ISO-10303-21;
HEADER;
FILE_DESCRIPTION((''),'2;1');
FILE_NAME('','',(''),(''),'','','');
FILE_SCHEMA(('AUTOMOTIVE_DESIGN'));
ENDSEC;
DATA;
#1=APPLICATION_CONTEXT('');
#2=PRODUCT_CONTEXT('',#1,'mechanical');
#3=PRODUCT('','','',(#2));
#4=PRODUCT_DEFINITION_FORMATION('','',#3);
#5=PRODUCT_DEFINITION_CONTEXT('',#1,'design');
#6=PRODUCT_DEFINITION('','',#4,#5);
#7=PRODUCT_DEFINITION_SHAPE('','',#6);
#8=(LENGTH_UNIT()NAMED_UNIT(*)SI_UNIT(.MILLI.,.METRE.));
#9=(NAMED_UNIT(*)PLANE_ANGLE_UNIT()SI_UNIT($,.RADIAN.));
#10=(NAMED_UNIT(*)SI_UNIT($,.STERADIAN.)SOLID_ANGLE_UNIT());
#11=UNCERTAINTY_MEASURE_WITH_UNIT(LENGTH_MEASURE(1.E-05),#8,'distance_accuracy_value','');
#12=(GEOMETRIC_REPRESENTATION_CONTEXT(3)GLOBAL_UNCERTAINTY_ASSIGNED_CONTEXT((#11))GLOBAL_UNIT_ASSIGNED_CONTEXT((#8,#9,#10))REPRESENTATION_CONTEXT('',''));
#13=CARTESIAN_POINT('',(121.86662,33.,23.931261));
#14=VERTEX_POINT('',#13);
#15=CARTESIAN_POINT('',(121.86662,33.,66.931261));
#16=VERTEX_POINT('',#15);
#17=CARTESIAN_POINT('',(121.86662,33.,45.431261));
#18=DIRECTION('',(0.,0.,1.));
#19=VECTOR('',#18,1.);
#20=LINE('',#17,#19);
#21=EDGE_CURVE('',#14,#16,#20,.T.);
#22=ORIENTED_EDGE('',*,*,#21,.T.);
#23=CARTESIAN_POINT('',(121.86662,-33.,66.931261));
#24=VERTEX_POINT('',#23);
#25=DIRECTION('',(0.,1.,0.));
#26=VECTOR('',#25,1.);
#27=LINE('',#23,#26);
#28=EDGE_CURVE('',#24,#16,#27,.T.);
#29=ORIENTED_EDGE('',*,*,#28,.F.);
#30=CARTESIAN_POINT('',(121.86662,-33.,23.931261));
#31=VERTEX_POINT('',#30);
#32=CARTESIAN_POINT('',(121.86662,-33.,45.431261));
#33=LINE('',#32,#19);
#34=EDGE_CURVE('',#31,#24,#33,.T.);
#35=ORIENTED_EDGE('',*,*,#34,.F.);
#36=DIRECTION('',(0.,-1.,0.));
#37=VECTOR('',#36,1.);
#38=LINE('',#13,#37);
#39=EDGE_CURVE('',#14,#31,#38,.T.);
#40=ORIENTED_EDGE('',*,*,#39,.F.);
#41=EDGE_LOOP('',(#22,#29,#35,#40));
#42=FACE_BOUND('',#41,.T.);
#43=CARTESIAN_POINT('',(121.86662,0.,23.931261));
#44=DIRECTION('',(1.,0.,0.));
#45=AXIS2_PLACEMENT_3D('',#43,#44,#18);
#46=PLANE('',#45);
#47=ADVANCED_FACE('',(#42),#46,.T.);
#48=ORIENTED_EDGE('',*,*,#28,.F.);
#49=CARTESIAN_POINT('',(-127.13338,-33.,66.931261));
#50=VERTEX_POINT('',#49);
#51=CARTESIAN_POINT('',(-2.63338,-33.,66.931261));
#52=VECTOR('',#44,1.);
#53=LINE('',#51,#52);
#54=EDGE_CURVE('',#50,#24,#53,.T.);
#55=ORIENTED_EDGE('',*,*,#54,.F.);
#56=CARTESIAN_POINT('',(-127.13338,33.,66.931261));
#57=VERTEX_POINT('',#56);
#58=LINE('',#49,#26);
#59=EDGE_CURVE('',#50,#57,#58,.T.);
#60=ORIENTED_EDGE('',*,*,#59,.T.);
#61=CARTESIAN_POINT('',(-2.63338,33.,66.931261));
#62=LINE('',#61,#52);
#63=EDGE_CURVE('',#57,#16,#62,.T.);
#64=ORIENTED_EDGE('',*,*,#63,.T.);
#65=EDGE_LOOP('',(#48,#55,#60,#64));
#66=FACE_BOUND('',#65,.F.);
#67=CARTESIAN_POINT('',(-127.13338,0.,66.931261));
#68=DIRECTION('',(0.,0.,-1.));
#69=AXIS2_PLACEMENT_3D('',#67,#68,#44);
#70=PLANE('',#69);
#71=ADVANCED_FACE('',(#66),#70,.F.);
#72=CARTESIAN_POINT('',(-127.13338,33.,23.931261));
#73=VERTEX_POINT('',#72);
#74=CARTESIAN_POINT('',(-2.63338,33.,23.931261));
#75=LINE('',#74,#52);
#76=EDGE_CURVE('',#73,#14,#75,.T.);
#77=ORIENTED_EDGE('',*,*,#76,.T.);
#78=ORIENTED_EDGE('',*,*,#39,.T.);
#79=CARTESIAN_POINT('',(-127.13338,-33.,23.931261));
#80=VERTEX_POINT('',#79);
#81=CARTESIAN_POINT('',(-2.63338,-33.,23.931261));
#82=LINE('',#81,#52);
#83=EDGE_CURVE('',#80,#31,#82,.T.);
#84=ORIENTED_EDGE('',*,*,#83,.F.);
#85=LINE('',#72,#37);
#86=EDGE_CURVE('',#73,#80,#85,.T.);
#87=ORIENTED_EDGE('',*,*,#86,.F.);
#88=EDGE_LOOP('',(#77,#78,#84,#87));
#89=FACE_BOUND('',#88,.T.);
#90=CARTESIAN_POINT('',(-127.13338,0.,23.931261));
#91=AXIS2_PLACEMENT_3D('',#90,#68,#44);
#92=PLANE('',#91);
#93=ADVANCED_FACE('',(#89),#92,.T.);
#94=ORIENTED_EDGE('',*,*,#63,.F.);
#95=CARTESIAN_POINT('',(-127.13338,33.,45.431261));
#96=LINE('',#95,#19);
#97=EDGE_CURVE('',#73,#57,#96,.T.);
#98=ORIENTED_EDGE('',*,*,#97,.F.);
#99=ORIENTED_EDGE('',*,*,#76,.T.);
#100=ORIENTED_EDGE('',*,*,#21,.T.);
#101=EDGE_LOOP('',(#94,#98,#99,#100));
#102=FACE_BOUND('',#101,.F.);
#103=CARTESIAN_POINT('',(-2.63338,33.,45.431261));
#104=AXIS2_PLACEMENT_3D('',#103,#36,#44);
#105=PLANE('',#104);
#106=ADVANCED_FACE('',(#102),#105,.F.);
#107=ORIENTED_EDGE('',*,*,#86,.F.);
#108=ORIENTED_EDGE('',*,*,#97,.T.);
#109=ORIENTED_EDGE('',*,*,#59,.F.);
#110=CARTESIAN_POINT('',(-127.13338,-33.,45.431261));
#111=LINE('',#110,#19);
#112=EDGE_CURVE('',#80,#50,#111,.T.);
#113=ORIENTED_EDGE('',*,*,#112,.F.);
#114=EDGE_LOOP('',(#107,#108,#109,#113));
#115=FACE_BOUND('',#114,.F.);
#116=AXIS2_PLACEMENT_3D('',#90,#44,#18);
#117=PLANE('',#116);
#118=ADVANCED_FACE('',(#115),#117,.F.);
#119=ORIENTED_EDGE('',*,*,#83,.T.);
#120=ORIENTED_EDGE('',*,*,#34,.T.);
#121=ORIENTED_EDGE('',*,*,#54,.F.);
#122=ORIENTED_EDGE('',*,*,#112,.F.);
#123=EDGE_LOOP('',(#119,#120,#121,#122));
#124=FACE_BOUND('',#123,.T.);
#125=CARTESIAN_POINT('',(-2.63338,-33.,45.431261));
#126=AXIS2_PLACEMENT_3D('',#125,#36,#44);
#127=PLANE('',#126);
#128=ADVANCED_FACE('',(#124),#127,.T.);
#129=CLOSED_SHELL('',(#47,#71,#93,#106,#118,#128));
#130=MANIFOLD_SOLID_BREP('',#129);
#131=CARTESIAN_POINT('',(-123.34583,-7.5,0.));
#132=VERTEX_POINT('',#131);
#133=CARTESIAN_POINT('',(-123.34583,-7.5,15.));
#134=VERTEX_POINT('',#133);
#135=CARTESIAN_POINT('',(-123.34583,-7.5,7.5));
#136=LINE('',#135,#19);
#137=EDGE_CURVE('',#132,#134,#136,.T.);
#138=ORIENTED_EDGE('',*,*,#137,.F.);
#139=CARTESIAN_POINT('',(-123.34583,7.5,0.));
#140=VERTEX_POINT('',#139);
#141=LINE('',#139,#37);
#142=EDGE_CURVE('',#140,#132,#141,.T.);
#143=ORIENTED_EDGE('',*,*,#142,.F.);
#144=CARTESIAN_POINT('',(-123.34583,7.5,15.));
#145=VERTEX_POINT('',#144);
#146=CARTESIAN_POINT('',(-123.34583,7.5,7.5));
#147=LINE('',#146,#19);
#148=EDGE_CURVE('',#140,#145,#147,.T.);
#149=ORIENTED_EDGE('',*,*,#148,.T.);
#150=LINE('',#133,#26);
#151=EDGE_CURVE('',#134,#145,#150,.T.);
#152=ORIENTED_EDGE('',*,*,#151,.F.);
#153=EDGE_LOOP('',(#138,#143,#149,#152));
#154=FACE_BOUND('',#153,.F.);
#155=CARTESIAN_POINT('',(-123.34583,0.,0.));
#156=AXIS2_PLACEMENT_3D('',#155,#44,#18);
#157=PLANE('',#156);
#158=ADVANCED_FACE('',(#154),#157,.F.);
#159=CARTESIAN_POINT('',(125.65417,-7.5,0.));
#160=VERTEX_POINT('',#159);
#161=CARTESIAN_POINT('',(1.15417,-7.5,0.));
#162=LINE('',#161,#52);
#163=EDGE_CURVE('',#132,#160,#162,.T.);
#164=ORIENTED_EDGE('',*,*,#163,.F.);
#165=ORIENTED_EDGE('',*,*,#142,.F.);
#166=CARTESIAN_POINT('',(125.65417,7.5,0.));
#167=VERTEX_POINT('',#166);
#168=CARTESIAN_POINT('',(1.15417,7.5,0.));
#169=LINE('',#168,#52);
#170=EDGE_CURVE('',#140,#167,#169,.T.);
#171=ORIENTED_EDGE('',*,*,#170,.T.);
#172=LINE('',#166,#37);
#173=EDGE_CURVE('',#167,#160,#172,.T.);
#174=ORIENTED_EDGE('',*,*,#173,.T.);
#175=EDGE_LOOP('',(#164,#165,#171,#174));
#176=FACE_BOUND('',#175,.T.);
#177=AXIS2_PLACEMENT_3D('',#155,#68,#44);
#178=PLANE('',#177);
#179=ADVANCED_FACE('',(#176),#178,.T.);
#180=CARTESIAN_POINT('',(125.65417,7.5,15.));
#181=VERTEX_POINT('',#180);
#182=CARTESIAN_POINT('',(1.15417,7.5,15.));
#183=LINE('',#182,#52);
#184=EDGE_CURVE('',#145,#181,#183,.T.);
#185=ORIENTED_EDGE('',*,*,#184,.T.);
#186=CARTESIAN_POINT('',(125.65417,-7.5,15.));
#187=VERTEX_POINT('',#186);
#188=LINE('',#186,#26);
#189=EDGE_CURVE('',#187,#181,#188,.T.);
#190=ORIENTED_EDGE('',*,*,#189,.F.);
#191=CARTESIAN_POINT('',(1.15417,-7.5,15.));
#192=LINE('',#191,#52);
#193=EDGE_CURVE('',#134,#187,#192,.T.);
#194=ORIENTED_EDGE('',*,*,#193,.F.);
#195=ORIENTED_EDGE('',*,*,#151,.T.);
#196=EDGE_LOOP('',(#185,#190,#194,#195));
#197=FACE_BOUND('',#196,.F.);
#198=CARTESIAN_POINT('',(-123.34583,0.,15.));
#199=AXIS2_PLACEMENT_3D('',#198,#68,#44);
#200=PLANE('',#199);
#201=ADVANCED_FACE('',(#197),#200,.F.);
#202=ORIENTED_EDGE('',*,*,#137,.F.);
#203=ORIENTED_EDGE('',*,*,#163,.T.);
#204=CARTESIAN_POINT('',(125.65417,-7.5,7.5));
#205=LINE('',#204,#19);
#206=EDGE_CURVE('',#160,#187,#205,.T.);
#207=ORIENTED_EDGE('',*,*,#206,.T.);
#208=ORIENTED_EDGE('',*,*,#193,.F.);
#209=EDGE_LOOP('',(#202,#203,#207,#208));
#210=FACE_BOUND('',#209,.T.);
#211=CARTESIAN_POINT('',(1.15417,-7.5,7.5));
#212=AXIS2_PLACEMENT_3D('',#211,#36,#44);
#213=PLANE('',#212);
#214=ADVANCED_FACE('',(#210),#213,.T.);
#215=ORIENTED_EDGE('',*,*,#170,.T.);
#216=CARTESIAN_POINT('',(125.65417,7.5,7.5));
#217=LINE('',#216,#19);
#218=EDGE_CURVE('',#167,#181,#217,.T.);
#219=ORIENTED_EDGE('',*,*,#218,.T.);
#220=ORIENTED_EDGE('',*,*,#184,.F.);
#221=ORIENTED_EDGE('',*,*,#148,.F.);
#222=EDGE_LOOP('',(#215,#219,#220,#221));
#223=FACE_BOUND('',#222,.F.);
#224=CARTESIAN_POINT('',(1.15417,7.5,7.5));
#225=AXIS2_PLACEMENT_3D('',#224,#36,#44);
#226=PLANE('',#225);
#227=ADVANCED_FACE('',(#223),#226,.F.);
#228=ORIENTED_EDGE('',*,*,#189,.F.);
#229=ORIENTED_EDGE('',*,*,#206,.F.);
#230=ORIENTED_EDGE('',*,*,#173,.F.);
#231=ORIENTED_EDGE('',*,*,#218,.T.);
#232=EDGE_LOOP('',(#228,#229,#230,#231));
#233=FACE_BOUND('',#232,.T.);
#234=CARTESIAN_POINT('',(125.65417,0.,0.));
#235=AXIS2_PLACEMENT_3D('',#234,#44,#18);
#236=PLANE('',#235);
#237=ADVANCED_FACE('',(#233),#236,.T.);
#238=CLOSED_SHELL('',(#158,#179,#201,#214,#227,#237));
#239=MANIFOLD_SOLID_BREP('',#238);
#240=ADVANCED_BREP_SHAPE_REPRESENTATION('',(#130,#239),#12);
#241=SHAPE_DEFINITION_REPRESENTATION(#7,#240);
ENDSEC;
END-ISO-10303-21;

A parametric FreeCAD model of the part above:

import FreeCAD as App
import Part
import Sketcher

V = App.Vector
Q = App.Units.Quantity


def add_polygon(sketch, points):
    """Adds a closed chain of lines whose ends are joined by coincident constraints."""
    first, n = sketch.GeometryCount, len(points)
    for a, b in zip(points, points[1:] + points[:1]):
        sketch.addGeometry(Part.LineSegment(App.Vector(*a, 0), App.Vector(*b, 0)), False)
    for i in range(n):
        sketch.addConstraint(Sketcher.Constraint("Coincident", first + i, 2, first + (i + 1) % n, 1))

doc = App.newDocument("Part")
body = doc.addObject("PartDesign::Body", "Body")

# Sketch on XZ plane
sketch1 = body.newObject("Sketcher::SketchObject", "Sketch")
sketch1.AttachmentSupport = (doc.getObject("XZ_Plane"), [""])
sketch1.MapMode = "FlatFace"
add_polygon(sketch1, [(-127.13338, 66.931261), (-127.13338, 23.931261), (121.86662, 23.931261), (121.86662, 66.931261)])  # lines 0-3
sketch1.addConstraint(Sketcher.Constraint("Vertical", 0))
sketch1.addConstraint(Sketcher.Constraint("Horizontal", 1))
sketch1.addConstraint(Sketcher.Constraint("Vertical", 2))
sketch1.addConstraint(Sketcher.Constraint("Horizontal", 3))
sketch1.addConstraint(Sketcher.Constraint("DistanceX", 1, 1, 1, 2, Q("249 mm")))
sketch1.addConstraint(Sketcher.Constraint("DistanceY", 0, 2, 0, 1, Q("43 mm")))
sketch1.addConstraint(Sketcher.Constraint("DistanceX", 0, 2, -1, 1, Q("127.13338 mm")))
sketch1.addConstraint(Sketcher.Constraint("DistanceY", -1, 1, 0, 2, Q("23.931261 mm")))
pad1 = body.newObject("PartDesign::Pad", "Pad")
pad1.Profile = sketch1
pad1.Length = 66
pad1.Midplane = True
body2 = doc.addObject("PartDesign::Body", "Body001")

# Sketch on XZ plane
sketch2 = body2.newObject("Sketcher::SketchObject", "Sketch001")
sketch2.AttachmentSupport = (doc.getObject("XZ_Plane001"), [""])
sketch2.MapMode = "FlatFace"
add_polygon(sketch2, [(-123.34583, 15), (-123.34583, 0), (125.65417, 0), (125.65417, 15)])  # lines 0-3
sketch2.addConstraint(Sketcher.Constraint("Vertical", 0))
sketch2.addConstraint(Sketcher.Constraint("Horizontal", 1))
sketch2.addConstraint(Sketcher.Constraint("Vertical", 2))
sketch2.addConstraint(Sketcher.Constraint("Horizontal", 3))
sketch2.addConstraint(Sketcher.Constraint("PointOnObject", 0, 2, -1))
sketch2.addConstraint(Sketcher.Constraint("DistanceX", 1, 1, 1, 2, Q("249 mm")))
sketch2.addConstraint(Sketcher.Constraint("DistanceY", 0, 2, 0, 1, Q("15 mm")))
sketch2.addConstraint(Sketcher.Constraint("DistanceX", 0, 2, -1, 1, Q("123.34583 mm")))
pad2 = body2.newObject("PartDesign::Pad", "Pad001")
pad2.Profile = sketch2
pad2.Length = 15
pad2.Midplane = True

doc.recompute()
